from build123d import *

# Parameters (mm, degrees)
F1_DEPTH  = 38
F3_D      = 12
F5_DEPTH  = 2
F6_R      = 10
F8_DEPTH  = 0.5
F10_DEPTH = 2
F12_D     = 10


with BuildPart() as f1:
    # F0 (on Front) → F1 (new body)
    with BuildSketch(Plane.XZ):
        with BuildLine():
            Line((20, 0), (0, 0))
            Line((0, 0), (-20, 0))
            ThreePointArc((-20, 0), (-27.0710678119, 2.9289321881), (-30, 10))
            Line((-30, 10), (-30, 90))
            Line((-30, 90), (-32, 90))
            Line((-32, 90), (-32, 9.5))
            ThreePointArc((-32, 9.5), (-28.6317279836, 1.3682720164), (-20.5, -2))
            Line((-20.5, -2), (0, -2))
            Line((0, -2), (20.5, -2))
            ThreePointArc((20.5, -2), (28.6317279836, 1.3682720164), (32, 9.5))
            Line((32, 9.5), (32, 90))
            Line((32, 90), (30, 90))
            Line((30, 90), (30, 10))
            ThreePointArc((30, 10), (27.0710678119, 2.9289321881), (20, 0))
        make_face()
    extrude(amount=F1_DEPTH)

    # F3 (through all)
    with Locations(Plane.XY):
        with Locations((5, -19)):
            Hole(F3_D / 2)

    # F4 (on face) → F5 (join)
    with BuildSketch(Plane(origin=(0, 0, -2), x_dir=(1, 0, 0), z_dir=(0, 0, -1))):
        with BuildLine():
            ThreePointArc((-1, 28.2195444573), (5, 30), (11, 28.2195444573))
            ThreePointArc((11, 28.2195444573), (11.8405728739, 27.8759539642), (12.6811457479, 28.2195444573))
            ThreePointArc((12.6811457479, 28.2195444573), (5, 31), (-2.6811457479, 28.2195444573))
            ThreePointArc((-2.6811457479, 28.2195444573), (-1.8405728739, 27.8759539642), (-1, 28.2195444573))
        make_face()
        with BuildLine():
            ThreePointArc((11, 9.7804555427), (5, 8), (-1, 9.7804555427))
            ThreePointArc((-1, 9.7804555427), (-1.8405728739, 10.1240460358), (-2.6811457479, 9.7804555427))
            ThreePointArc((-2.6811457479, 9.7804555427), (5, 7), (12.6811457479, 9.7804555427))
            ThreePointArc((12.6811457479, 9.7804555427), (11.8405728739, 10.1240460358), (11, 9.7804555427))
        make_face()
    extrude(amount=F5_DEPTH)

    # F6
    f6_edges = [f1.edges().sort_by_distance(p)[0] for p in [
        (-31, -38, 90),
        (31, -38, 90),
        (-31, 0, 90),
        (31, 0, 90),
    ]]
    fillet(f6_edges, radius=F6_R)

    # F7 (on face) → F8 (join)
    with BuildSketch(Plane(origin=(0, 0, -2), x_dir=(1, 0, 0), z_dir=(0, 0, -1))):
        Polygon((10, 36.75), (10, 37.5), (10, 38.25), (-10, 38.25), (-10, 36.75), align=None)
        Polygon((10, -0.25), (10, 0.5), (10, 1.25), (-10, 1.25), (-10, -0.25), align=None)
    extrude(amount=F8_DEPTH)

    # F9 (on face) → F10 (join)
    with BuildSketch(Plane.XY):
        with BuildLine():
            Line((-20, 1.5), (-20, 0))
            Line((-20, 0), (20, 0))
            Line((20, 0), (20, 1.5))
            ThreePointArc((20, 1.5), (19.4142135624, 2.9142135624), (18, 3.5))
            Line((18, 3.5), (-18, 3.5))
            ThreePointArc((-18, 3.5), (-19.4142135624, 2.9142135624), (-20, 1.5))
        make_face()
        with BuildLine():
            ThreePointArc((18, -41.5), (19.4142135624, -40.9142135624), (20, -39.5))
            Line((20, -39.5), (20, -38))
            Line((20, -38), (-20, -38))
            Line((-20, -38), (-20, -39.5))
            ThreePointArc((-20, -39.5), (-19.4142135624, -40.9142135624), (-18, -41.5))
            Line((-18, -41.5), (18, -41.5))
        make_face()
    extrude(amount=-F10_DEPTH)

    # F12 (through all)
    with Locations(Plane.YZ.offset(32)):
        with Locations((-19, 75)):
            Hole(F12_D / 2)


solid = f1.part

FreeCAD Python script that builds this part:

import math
import FreeCAD as App
import Part
import Sketcher
from FreeCAD import Vector
Q = App.Units.Quantity


def edges_at(feature, points):
    """Names of the edges that pass closest to the given points."""
    edges = feature.Shape.Edges
    near = lambda p: min(range(len(edges)), key=lambda i: edges[i].distToShape(Part.Vertex(*p))[0])
    return sorted({f"Edge{near(p) + 1}" for p in points})


def add_polygon(sketch, points):
    """Adds a closed chain of lines whose ends are joined by coincident constraints."""
    first, n = sketch.GeometryCount, len(points)
    for a, b in zip(points, points[1:] + points[:1]):
        sketch.addGeometry(Part.LineSegment(App.Vector(*a, 0), App.Vector(*b, 0)), False)
    for i in range(n):
        sketch.addConstraint(Sketcher.Constraint("Coincident", first + i, 2, first + (i + 1) % n, 1))

doc = App.newDocument("Part")
params = doc.addObject("Spreadsheet::Sheet", "Params")
for row, (alias, value) in enumerate([
    ("sketch1_radius", "10 mm"),
    ("sketch1_radius2", "11.5 mm"),
    ("sketch1_width", "40 mm"),
    ("sketch1_width2", "2 mm"),
    ("sketch1_height", "80 mm"),
    ("pad1_length", "38 mm"),
    ("sketch2_diameter", "12 mm"),
    ("hole_diameter", "12 mm"),
    ("sketch3_radius", "11 mm"),
    ("sketch3_radius2", "12 mm"),
    ("sketch3_radius3", "1.2 mm"),
    ("pad2_length", "2 mm"),
    ("fillet_radius", "10 mm"),
    ("sketch4_width", "20 mm"),
    ("sketch4_height", "1.5 mm"),
    ("pad3_length", "0.5 mm"),
    ("sketch5_radius", "2 mm"),
    ("sketch5_width", "40 mm"),
    ("sketch5_height", "1.5 mm"),
    ("pad4_length", "2 mm"),
    ("sketch6_diameter", "10 mm"),
    ("hole2_diameter", "10 mm"),
], start=1):
    params.set(f"A{row}", alias)
    params.set(f"B{row}", "=" + value)
    params.setAlias(f"B{row}", alias)

body = doc.addObject("PartDesign::Body", "Body")

# Sketch on XZ plane
sketch1 = body.newObject("Sketcher::SketchObject", "Sketch")
sketch1.AttachmentSupport = (doc.getObject("XZ_Plane"), [""])
sketch1.MapMode = "FlatFace"
sketch1.addGeometry([
    Part.LineSegment(Vector(20, 0, 0), Vector(-20, 0, 0)),  # 0
    Part.ArcOfCircle(Part.Circle(Vector(-20, 10, 0), Vector(0, 0, 1), 10), math.radians(180), math.radians(270)),  # 1
    Part.LineSegment(Vector(-30, 10, 0), Vector(-30, 90, 0)),  # 2
    Part.LineSegment(Vector(-30, 90, 0), Vector(-32, 90, 0)),  # 3
    Part.LineSegment(Vector(-32, 90, 0), Vector(-32, 9.5, 0)),  # 4
    Part.ArcOfCircle(Part.Circle(Vector(-20.5, 9.5, 0), Vector(0, 0, 1), 11.5), math.radians(180), math.radians(270)),  # 5
    Part.LineSegment(Vector(-20.5, -2, 0), Vector(20.5, -2, 0)),  # 6
    Part.ArcOfCircle(Part.Circle(Vector(20.5, 9.5, 0), Vector(0, 0, 1), 11.5), math.radians(-90), math.radians(0)),  # 7
    Part.LineSegment(Vector(32, 9.5, 0), Vector(32, 90, 0)),  # 8
    Part.LineSegment(Vector(32, 90, 0), Vector(30, 90, 0)),  # 9
    Part.LineSegment(Vector(30, 90, 0), Vector(30, 10, 0)),  # 10
    Part.ArcOfCircle(Part.Circle(Vector(20, 10, 0), Vector(0, 0, 1), 10), math.radians(-90), math.radians(0)),  # 11
], False)
sketch1.addConstraint([
    Sketcher.Constraint("Tangent", 0, 2, 1, 2),
    Sketcher.Constraint("Tangent", 1, 1, 2, 1),
    Sketcher.Constraint("Coincident", 2, 2, 3, 1),
    Sketcher.Constraint("Coincident", 3, 2, 4, 1),
    Sketcher.Constraint("Tangent", 4, 2, 5, 1),
    Sketcher.Constraint("Tangent", 5, 2, 6, 1),
    Sketcher.Constraint("Tangent", 6, 2, 7, 1),
    Sketcher.Constraint("Tangent", 7, 2, 8, 1),
    Sketcher.Constraint("Coincident", 8, 2, 9, 1),
    Sketcher.Constraint("Coincident", 9, 2, 10, 1),
    Sketcher.Constraint("Tangent", 10, 2, 11, 2),
    Sketcher.Constraint("Tangent", 11, 1, 0, 1),
    Sketcher.Constraint("Horizontal", 0),
    Sketcher.Constraint("Vertical", 2),
    Sketcher.Constraint("Horizontal", 3),
    Sketcher.Constraint("Vertical", 4),
    Sketcher.Constraint("Horizontal", 6),
    Sketcher.Constraint("Vertical", 8),
    Sketcher.Constraint("Horizontal", 9),
    Sketcher.Constraint("Vertical", 10),
    Sketcher.Constraint("Equal", 5, 7),
    Sketcher.Constraint("Equal", 1, 11),
    Sketcher.Constraint("Symmetric", 0, 2, 11, 1, -1, 1),
    Sketcher.Constraint("Symmetric", 3, 2, 8, 2, -2),
    Sketcher.Constraint("Radius", 1, Q("10 mm")),
    Sketcher.Constraint("Radius", 5, Q("11.5 mm")),
    Sketcher.Constraint("DistanceX", 0, 2, 0, 1, Q("40 mm")),
    Sketcher.Constraint("DistanceX", 3, 2, 3, 1, Q("2 mm")),
    Sketcher.Constraint("DistanceY", 2, 1, 2, 2, Q("80 mm")),
    Sketcher.Constraint("DistanceY", 4, 2, 4, 1, Q("80.5 mm")),
])
sketch1.setExpression("Constraints[24]", "Params.sketch1_radius")
sketch1.setExpression("Constraints[25]", "Params.sketch1_radius2")
sketch1.setExpression("Constraints[26]", "Params.sketch1_width")
sketch1.setExpression("Constraints[27]", "Params.sketch1_width2")
sketch1.setExpression("Constraints[28]", "Params.sketch1_height")
pad1 = body.newObject("PartDesign::Pad", "Pad")
pad1.Profile = sketch1
pad1.setExpression("Length", "Params.pad1_length")

# Sketch on XY plane
sketch2 = body.newObject("Sketcher::SketchObject", "Sketch001")
sketch2.AttachmentSupport = (doc.getObject("XY_Plane"), [""])
sketch2.MapMode = "FlatFace"
sketch2.addGeometry(Part.Circle(Vector(5, -19, 0), Vector(0, 0, 1), 6), False)
sketch2.addConstraint([
    Sketcher.Constraint("Diameter", 0, Q("12 mm")),
    Sketcher.Constraint("DistanceX", -1, 1, 0, 3, Q("5 mm")),
    Sketcher.Constraint("DistanceY", 0, 3, -1, 1, Q("19 mm")),
])
sketch2.setExpression("Constraints[0]", "Params.sketch2_diameter")
doc.recompute()
hole = body.newObject("PartDesign::Hole", "Hole")
hole.Profile = sketch2
hole.ThreadType = "None"
hole.setExpression("Diameter", "Params.hole_diameter")
hole.DepthType = "ThroughAll"

# Sketch on XY plane
sketch3 = body.newObject("Sketcher::SketchObject", "Sketch002")
sketch3.AttachmentSupport = (doc.getObject("XY_Plane"), [""])
sketch3.MapMode = "FlatFace"
sketch3.AttachmentOffset = App.Placement(Vector(0, 0, -2), App.Rotation())
sketch3.addGeometry([
    Part.ArcOfCircle(Part.Circle(Vector(5, -19, 0), Vector(0, 0, 1), 11), math.radians(-123), math.radians(-57)),  # 0
    Part.ArcOfCircle(Part.Circle(Vector(11.8, -29.1, 0), Vector(0, 0, 1), 1.2), math.radians(46), math.radians(134)),  # 1
    Part.ArcOfCircle(Part.Circle(Vector(5, -19, 0), Vector(0, 0, 1), 12), math.radians(-130), math.radians(-50)),  # 2
    Part.ArcOfCircle(Part.Circle(Vector(-1.8, -29.1, 0), Vector(0, 0, 1), 1.2), math.radians(46), math.radians(134)),  # 3
    Part.ArcOfCircle(Part.Circle(Vector(5, -19, 0), Vector(0, 0, 1), 11), math.radians(57), math.radians(123)),  # 4
    Part.ArcOfCircle(Part.Circle(Vector(-1.8, -8.9, 0), Vector(0, 0, 1), 1.2), math.radians(-134), math.radians(-46)),  # 5
    Part.ArcOfCircle(Part.Circle(Vector(5, -19, 0), Vector(0, 0, 1), 12), math.radians(50), math.radians(130)),  # 6
    Part.ArcOfCircle(Part.Circle(Vector(11.8, -8.9, 0), Vector(0, 0, 1), 1.2), math.radians(-134), math.radians(-46)),  # 7
], False)
sketch3.addConstraint([
    Sketcher.Constraint("Coincident", 0, 2, 1, 2),
    Sketcher.Constraint("Coincident", 1, 1, 2, 2),
    Sketcher.Constraint("Coincident", 2, 1, 3, 2),
    Sketcher.Constraint("Coincident", 3, 1, 0, 1),
    Sketcher.Constraint("Coincident", 4, 2, 5, 2),
    Sketcher.Constraint("Coincident", 5, 1, 6, 2),
    Sketcher.Constraint("Coincident", 6, 1, 7, 2),
    Sketcher.Constraint("Coincident", 7, 1, 4, 1),
    Sketcher.Constraint("Coincident", 2, 3, 0, 3),
    Sketcher.Constraint("Coincident", 4, 3, 0, 3),
    Sketcher.Constraint("Coincident", 6, 3, 0, 3),
    Sketcher.Constraint("Equal", 1, 3),
    Sketcher.Constraint("Equal", 0, 4),
    Sketcher.Constraint("Equal", 3, 5),
    Sketcher.Constraint("Equal", 2, 6),
    Sketcher.Constraint("Equal", 5, 7),
    Sketcher.Constraint("Horizontal", 1, 3, 3, 3),
    Sketcher.Constraint("Horizontal", 5, 3, 7, 3),
    Sketcher.Constraint("Horizontal", 0, 2, 1, 1),
    Sketcher.Constraint("Horizontal", 1, 1, 2, 1),
    Sketcher.Constraint("Horizontal", 4, 2, 5, 1),
    Sketcher.Constraint("Horizontal", 5, 1, 6, 1),
    Sketcher.Constraint("Vertical", 3, 3, 5, 3),
    Sketcher.Constraint("Radius", 0, Q("11 mm")),
    Sketcher.Constraint("Radius", 2, Q("12 mm")),
    Sketcher.Constraint("Radius", 1, Q("1.2 mm")),
    Sketcher.Constraint("DistanceX", -1, 1, 0, 3, Q("5 mm")),
    Sketcher.Constraint("DistanceY", 0, 3, -1, 1, Q("19 mm")),
    Sketcher.Constraint("DistanceX", -1, 1, 0, 2, Q("11 mm")),
])
sketch3.setExpression("Constraints[23]", "Params.sketch3_radius")
sketch3.setExpression("Constraints[24]", "Params.sketch3_radius2")
sketch3.setExpression("Constraints[25]", "Params.sketch3_radius3")
pad2 = body.newObject("PartDesign::Pad", "Pad001")
pad2.Profile = sketch3
pad2.setExpression("Length", "Params.pad2_length")
pad2.Reversed = True
doc.recompute()

fillet = body.newObject("PartDesign::Fillet", "Fillet")
fillet.Base = (pad2, edges_at(pad2, [
    (-31, -38, 90),
    (31, -38, 90),
    (-31, 0, 90),
    (31, 0, 90),
]))
fillet.setExpression("Radius", "Params.fillet_radius")

# Sketch on XY plane
sketch4 = body.newObject("Sketcher::SketchObject", "Sketch003")
sketch4.AttachmentSupport = (doc.getObject("XY_Plane"), [""])
sketch4.MapMode = "FlatFace"
sketch4.AttachmentOffset = App.Placement(Vector(0, 0, -2), App.Rotation())
add_polygon(sketch4, [(10, -36.8), (10, -38.2), (-10, -38.2), (-10, -36.8)])  # lines 0-3
add_polygon(sketch4, [(10, 0.2), (10, -1.2), (-10, -1.2), (-10, 0.2)])  # lines 4-7
sketch4.addConstraint([
    Sketcher.Constraint("Vertical", 0),
    Sketcher.Constraint("Horizontal", 1),
    Sketcher.Constraint("Vertical", 2),
    Sketcher.Constraint("Horizontal", 3),
    Sketcher.Constraint("Vertical", 4),
    Sketcher.Constraint("Horizontal", 5),
    Sketcher.Constraint("Vertical", 6),
    Sketcher.Constraint("Horizontal", 7),
    Sketcher.Constraint("Vertical", 3, 2, 4, 2),
    Sketcher.Constraint("Vertical", 2, 2, 5, 2),
    Sketcher.Constraint("Equal", 2, 4),
    Sketcher.Constraint("DistanceX", 1, 2, 1, 1, Q("20 mm")),
    Sketcher.Constraint("DistanceY", 0, 2, 0, 1, Q("1.5 mm")),
    Sketcher.Constraint("DistanceX", -1, 1, 0, 2, Q("10 mm")),
    Sketcher.Constraint("DistanceY", 0, 2, 4, 2, Q("37 mm")),
    Sketcher.Constraint("DistanceY", 0, 2, -1, 1, Q("38.25 mm")),
])
sketch4.setExpression("Constraints[19]", "Params.sketch4_width")
sketch4.setExpression("Constraints[20]", "Params.sketch4_height")
pad3 = body.newObject("PartDesign::Pad", "Pad002")
pad3.Profile = sketch4
pad3.setExpression("Length", "Params.pad3_length")
pad3.Reversed = True

# Sketch on XY plane
sketch5 = body.newObject("Sketcher::SketchObject", "Sketch004")
sketch5.AttachmentSupport = (doc.getObject("XY_Plane"), [""])
sketch5.MapMode = "FlatFace"
sketch5.addGeometry([
    Part.LineSegment(Vector(-20, 1.5, 0), Vector(-20, 0, 0)),  # 0
    Part.LineSegment(Vector(-20, 0, 0), Vector(20, 0, 0)),  # 1
    Part.LineSegment(Vector(20, 0, 0), Vector(20, 1.5, 0)),  # 2
    Part.ArcOfCircle(Part.Circle(Vector(18, 1.5, 0), Vector(0, 0, 1), 2), math.radians(0), math.radians(90)),  # 3
    Part.LineSegment(Vector(18, 3.5, 0), Vector(-18, 3.5, 0)),  # 4
    Part.ArcOfCircle(Part.Circle(Vector(-18, 1.5, 0), Vector(0, 0, 1), 2), math.radians(90), math.radians(180)),  # 5
    Part.ArcOfCircle(Part.Circle(Vector(18, -39.5, 0), Vector(0, 0, 1), 2), math.radians(-90), math.radians(0)),  # 6
    Part.LineSegment(Vector(20, -39.5, 0), Vector(20, -38, 0)),  # 7
    Part.LineSegment(Vector(20, -38, 0), Vector(-20, -38, 0)),  # 8
    Part.LineSegment(Vector(-20, -38, 0), Vector(-20, -39.5, 0)),  # 9
    Part.ArcOfCircle(Part.Circle(Vector(-18, -39.5, 0), Vector(0, 0, 1), 2), math.radians(180), math.radians(270)),  # 10
    Part.LineSegment(Vector(-18, -41.5, 0), Vector(18, -41.5, 0)),  # 11
], False)
sketch5.addConstraint([
    Sketcher.Constraint("Coincident", 0, 2, 1, 1),
    Sketcher.Constraint("Coincident", 1, 2, 2, 1),
    Sketcher.Constraint("Tangent", 2, 2, 3, 1),
    Sketcher.Constraint("Tangent", 3, 2, 4, 1),
    Sketcher.Constraint("Tangent", 4, 2, 5, 1),
    Sketcher.Constraint("Tangent", 5, 2, 0, 1),
    Sketcher.Constraint("Tangent", 6, 2, 7, 1),
    Sketcher.Constraint("Coincident", 7, 2, 8, 1),
    Sketcher.Constraint("Coincident", 8, 2, 9, 1),
    Sketcher.Constraint("Tangent", 9, 2, 10, 1),
    Sketcher.Constraint("Tangent", 10, 2, 11, 1),
    Sketcher.Constraint("Tangent", 11, 2, 6, 1),
    Sketcher.Constraint("Vertical", 0),
    Sketcher.Constraint("Horizontal", 1),
    Sketcher.Constraint("Vertical", 2),
    Sketcher.Constraint("Horizontal", 4),
    Sketcher.Constraint("Vertical", 7),
    Sketcher.Constraint("Horizontal", 8),
    Sketcher.Constraint("Vertical", 9),
    Sketcher.Constraint("Horizontal", 11),
    Sketcher.Constraint("Equal", 3, 5),
    Sketcher.Constraint("Equal", 5, 6),
    Sketcher.Constraint("Equal", 6, 10),
    Sketcher.Constraint("Symmetric", 0, 2, 1, 2, -1, 1),
    Sketcher.Constraint("Vertical", 3, 3, 6, 3),
    Sketcher.Constraint("Vertical", 5, 3, 10, 3),
    Sketcher.Constraint("Equal", 2, 7),
    Sketcher.Constraint("Radius", 3, Q("2 mm")),
    Sketcher.Constraint("DistanceX", 1, 1, 1, 2, Q("40 mm")),
    Sketcher.Constraint("DistanceY", 0, 2, 0, 1, Q("1.5 mm")),
    Sketcher.Constraint("DistanceY", 7, 2, -1, 1, Q("38 mm")),
])
sketch5.setExpression("Constraints[27]", "Params.sketch5_radius")
sketch5.setExpression("Constraints[28]", "Params.sketch5_width")
sketch5.setExpression("Constraints[29]", "Params.sketch5_height")
pad4 = body.newObject("PartDesign::Pad", "Pad003")
pad4.Profile = sketch5
pad4.setExpression("Length", "Params.pad4_length")
pad4.Reversed = True

# Sketch on YZ plane
sketch6 = body.newObject("Sketcher::SketchObject", "Sketch005")
sketch6.AttachmentSupport = (doc.getObject("YZ_Plane"), [""])
sketch6.MapMode = "FlatFace"
sketch6.AttachmentOffset = App.Placement(Vector(0, 0, 32), App.Rotation())
sketch6.addGeometry(Part.Circle(Vector(-19, 75, 0), Vector(0, 0, 1), 5), False)
sketch6.addConstraint([
    Sketcher.Constraint("Diameter", 0, Q("10 mm")),
    Sketcher.Constraint("DistanceX", 0, 3, -1, 1, Q("19 mm")),
    Sketcher.Constraint("DistanceY", -1, 1, 0, 3, Q("75 mm")),
])
sketch6.setExpression("Constraints[0]", "Params.sketch6_diameter")
doc.recompute()
hole2 = body.newObject("PartDesign::Hole", "Hole001")
hole2.Profile = sketch6
hole2.ThreadType = "None"
hole2.setExpression("Diameter", "Params.hole2_diameter")
hole2.DepthType = "ThroughAll"

doc.recompute()
